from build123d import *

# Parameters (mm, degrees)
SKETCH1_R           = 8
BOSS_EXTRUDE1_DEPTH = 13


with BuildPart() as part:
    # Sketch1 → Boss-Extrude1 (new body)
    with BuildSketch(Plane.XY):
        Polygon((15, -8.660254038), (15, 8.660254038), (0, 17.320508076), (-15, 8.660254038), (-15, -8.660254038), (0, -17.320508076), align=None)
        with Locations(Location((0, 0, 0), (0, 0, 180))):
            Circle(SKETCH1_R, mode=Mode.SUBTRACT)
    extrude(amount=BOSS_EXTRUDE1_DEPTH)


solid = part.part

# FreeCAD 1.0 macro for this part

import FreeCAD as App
import Part
import Sketcher
Q = App.Units.Quantity


def add_polygon(sketch, points):
    """Adds a closed chain of lines whose ends are joined by coincident constraints."""
    first, n = sketch.GeometryCount, len(points)
    for a, b in zip(points, points[1:] + points[:1]):
        sketch.addGeometry(Part.LineSegment(App.Vector(*a, 0), App.Vector(*b, 0)), False)
    for i in range(n):
        sketch.addConstraint(Sketcher.Constraint("Coincident", first + i, 2, first + (i + 1) % n, 1))

doc = App.newDocument("Part")
body = doc.addObject("PartDesign::Body", "Body")

# Sketch on XY plane
sketch1 = body.newObject("Sketcher::SketchObject", "Sketch")
sketch1.AttachmentSupport = (doc.getObject("XY_Plane"), [""])
sketch1.MapMode = "FlatFace"
add_polygon(sketch1, [(15, -9), (15, 9), (0, 17), (-15, 9), (-15, -9), (0, -17)])  # lines 0-5
sketch1.addGeometry(Part.Circle(App.Vector(0, 0, 0), App.Vector(0, 0, 1), 8), False)  # 6
sketch1.addConstraint([
    Sketcher.Constraint("Vertical", 0),
    Sketcher.Constraint("Vertical", 3),
    Sketcher.Constraint("Coincident", 6, 3, -1, 1),
    Sketcher.Constraint("Symmetric", 0, 2, 3, 2, -1, 1),
    Sketcher.Constraint("Symmetric", 1, 2, 4, 2, -1, 1),
    Sketcher.Constraint("PointOnObject", 1, 2, -2),
    Sketcher.Constraint("Parallel", 2, 5),
    Sketcher.Constraint("Horizontal", 0, 2, 2, 2),
    Sketcher.Constraint("Diameter", 6, Q("16 mm")),
    Sketcher.Constraint("Angle", 1, Q("150 deg")),
    Sketcher.Constraint("DistanceX", -1, 1, 0, 2, Q("15 mm")),
    Sketcher.Constraint("DistanceY", 0, 1, 0, 2, Q("17.320508 mm")),
])
pad1 = body.newObject("PartDesign::Pad", "Pad")
pad1.Profile = sketch1
pad1.Length = 13

doc.recompute()
